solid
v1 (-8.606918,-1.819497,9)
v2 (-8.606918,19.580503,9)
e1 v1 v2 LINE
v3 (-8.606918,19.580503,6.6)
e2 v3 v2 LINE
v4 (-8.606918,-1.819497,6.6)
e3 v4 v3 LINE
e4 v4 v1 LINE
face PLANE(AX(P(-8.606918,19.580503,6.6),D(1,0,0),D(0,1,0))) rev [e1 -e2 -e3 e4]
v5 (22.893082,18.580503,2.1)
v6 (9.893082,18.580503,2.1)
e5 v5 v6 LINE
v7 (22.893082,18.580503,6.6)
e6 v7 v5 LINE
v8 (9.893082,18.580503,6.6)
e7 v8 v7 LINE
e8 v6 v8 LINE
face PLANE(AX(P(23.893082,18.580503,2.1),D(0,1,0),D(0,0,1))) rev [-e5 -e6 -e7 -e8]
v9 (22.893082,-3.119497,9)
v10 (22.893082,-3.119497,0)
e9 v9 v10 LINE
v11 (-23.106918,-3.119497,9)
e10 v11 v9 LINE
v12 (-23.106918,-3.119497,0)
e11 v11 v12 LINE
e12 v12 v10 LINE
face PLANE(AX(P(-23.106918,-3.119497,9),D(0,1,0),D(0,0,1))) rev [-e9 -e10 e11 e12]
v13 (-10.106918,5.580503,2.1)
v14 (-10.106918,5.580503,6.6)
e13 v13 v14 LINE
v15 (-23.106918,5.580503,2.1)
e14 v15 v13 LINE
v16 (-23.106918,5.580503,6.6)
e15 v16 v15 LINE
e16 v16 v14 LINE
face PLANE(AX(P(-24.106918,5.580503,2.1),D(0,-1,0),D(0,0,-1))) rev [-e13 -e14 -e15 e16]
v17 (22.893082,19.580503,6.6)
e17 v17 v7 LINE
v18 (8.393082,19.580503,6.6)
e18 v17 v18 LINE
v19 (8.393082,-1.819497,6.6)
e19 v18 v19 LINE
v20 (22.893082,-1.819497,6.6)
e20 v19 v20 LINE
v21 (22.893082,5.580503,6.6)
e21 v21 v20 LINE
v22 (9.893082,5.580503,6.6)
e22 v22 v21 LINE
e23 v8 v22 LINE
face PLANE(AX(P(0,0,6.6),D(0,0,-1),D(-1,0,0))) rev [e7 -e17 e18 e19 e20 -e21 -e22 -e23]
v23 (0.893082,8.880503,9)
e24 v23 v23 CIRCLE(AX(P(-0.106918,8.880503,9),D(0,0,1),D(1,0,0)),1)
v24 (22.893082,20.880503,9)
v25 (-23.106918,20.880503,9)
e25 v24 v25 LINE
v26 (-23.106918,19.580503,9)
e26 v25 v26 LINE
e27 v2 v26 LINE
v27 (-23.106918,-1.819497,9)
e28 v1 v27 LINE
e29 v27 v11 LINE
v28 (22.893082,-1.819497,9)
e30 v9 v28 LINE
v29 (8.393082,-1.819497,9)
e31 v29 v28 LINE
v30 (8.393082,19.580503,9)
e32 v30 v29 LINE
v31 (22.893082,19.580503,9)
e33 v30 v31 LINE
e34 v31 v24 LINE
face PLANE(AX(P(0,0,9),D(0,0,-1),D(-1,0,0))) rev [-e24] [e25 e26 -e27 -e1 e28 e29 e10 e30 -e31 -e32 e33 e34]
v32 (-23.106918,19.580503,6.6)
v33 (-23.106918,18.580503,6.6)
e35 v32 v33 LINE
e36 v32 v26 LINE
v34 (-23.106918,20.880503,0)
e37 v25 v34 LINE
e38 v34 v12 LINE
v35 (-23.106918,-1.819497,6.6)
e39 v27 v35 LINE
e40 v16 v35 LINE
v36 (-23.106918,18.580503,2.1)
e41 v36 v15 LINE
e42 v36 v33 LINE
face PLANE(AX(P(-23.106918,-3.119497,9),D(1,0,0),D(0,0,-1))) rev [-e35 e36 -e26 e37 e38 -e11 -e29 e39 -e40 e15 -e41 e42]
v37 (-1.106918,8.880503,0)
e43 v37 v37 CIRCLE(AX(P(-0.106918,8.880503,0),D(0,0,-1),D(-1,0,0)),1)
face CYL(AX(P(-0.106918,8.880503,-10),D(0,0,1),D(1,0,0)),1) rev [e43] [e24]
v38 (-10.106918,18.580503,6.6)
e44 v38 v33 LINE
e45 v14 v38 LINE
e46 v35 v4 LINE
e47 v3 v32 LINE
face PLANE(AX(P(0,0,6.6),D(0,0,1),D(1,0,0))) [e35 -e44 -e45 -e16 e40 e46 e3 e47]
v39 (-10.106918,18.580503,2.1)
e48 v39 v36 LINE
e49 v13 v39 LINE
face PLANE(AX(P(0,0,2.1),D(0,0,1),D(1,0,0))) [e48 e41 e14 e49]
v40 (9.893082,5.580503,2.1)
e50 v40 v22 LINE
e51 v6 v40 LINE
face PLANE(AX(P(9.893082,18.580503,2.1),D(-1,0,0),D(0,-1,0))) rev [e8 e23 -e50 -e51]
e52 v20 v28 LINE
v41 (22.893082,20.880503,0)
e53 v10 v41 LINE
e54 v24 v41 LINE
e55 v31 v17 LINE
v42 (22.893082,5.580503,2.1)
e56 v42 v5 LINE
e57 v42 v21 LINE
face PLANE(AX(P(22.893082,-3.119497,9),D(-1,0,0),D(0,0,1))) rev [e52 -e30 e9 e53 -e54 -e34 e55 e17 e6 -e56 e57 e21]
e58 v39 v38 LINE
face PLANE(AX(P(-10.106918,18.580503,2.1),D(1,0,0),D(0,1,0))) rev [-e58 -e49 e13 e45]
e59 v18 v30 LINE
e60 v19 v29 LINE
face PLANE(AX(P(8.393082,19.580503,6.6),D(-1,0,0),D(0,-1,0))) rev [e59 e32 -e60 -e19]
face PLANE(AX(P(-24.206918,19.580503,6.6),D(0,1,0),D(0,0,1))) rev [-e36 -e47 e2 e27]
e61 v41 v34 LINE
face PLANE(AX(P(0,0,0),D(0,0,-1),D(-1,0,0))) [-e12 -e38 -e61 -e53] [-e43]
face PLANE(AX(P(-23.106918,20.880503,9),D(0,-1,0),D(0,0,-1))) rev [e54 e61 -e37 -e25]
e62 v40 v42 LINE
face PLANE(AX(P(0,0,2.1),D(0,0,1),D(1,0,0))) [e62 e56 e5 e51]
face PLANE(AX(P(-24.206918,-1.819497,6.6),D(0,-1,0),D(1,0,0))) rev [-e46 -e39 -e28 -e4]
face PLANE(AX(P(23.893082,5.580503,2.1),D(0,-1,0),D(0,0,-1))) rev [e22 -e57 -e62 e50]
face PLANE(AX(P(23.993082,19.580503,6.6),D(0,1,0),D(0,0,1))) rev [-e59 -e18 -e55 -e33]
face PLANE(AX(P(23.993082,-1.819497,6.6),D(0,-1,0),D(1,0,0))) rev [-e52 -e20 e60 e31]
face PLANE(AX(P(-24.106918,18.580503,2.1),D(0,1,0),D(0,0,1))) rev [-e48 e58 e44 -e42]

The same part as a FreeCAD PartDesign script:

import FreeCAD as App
import Part
import Sketcher

V = App.Vector


def add_polygon(sketch, points):
    """Adds a closed chain of lines whose ends are joined by coincident constraints."""
    first, n = sketch.GeometryCount, len(points)
    for a, b in zip(points, points[1:] + points[:1]):
        sketch.addGeometry(Part.LineSegment(App.Vector(*a, 0), App.Vector(*b, 0)), False)
    for i in range(n):
        sketch.addConstraint(Sketcher.Constraint("Coincident", first + i, 2, first + (i + 1) % n, 1))

doc = App.newDocument("Part")
body = doc.addObject("PartDesign::Body", "Body")

# Sketch on XY plane
sketch1 = body.newObject("Sketcher::SketchObject", "Sketch")
sketch1.AttachmentSupport = (doc.getObject("XY_Plane"), [""])
sketch1.MapMode = "FlatFace"
add_polygon(sketch1, [(-23, 21), (-23, -3), (23, -3), (23, 21)])  # lines 0-3
sketch1.addConstraint(Sketcher.Constraint("Vertical", 0))
sketch1.addConstraint(Sketcher.Constraint("Horizontal", 1))
sketch1.addConstraint(Sketcher.Constraint("Vertical", 2))
sketch1.addConstraint(Sketcher.Constraint("Horizontal", 3))
sketch1.addConstraint(Sketcher.Constraint("DistanceX", 1, 1, 1, 2, 46.0))
sketch1.addConstraint(Sketcher.Constraint("DistanceY", 0, 2, 0, 1, 24.0))
sketch1.addConstraint(Sketcher.Constraint("DistanceX", 0, 2, -1, 1, 23.106918))
sketch1.addConstraint(Sketcher.Constraint("DistanceY", 0, 2, -1, 1, 3.119497))
pad1 = body.newObject("PartDesign::Pad", "Pad")
pad1.Profile = sketch1
pad1.Length = 9

# Sketch on XY plane
sketch2 = body.newObject("Sketcher::SketchObject", "Sketch001")
sketch2.AttachmentSupport = (doc.getObject("XY_Plane"), [""])
sketch2.MapMode = "FlatFace"
sketch2.AttachmentOffset = App.Placement(V(0, 0, 9), App.Rotation())
sketch2.addGeometry(Part.Circle(V(-0.1, 8.9, 0), V(0, 0, 1), 1), False)
sketch2.addConstraint(Sketcher.Constraint("Diameter", 0, 2.0))
sketch2.addConstraint(Sketcher.Constraint("DistanceX", 0, 3, -1, 1, 0.106918))
sketch2.addConstraint(Sketcher.Constraint("DistanceY", -1, 1, 0, 3, 8.880503))
pocket1 = body.newObject("PartDesign::Pocket", "Pocket")
pocket1.Profile = sketch2
pocket1.Length = 19

# Sketch on XY plane
sketch3 = body.newObject("Sketcher::SketchObject", "Sketch002")
sketch3.AttachmentSupport = (doc.getObject("XY_Plane"), [""])
sketch3.MapMode = "FlatFace"
sketch3.AttachmentOffset = App.Placement(V(0, 0, 9), App.Rotation())
add_polygon(sketch3, [(-24, 20), (-24, -2), (-9, -2), (-9, 20)])  # lines 0-3
add_polygon(sketch3, [(8, 20), (8, -2), (24, -2), (24, 20)])  # lines 4-7
sketch3.addConstraint(Sketcher.Constraint("Vertical", 0))
sketch3.addConstraint(Sketcher.Constraint("Horizontal", 1))
sketch3.addConstraint(Sketcher.Constraint("Vertical", 2))
sketch3.addConstraint(Sketcher.Constraint("Horizontal", 3))
sketch3.addConstraint(Sketcher.Constraint("Vertical", 4))
sketch3.addConstraint(Sketcher.Constraint("Horizontal", 5))
sketch3.addConstraint(Sketcher.Constraint("Vertical", 6))
sketch3.addConstraint(Sketcher.Constraint("Horizontal", 7))
sketch3.addConstraint(Sketcher.Constraint("Horizontal", 1, 2, 4, 2))
sketch3.addConstraint(Sketcher.Constraint("Horizontal", 3, 2, 6, 2))
sketch3.addConstraint(Sketcher.Constraint("Equal", 3, 5))
sketch3.addConstraint(Sketcher.Constraint("DistanceX", 1, 1, 1, 2, 15.6))
sketch3.addConstraint(Sketcher.Constraint("DistanceY", 0, 2, 0, 1, 21.4))
sketch3.addConstraint(Sketcher.Constraint("DistanceX", 1, 2, 4, 2, 17.0))
sketch3.addConstraint(Sketcher.Constraint("DistanceX", 0, 2, -1, 1, 24.206918))
sketch3.addConstraint(Sketcher.Constraint("DistanceY", 0, 2, -1, 1, 1.819497))
pocket2 = body.newObject("PartDesign::Pocket", "Pocket001")
pocket2.Profile = sketch3
pocket2.Length = 2.4

# Sketch on XY plane
sketch4 = body.newObject("Sketcher::SketchObject", "Sketch003")
sketch4.AttachmentSupport = (doc.getObject("XY_Plane"), [""])
sketch4.MapMode = "FlatFace"
sketch4.AttachmentOffset = App.Placement(V(0, 0, 6.6), App.Rotation())
add_polygon(sketch4, [(-24, 19), (-24, 6), (-10, 6), (-10, 19)])  # lines 0-3
add_polygon(sketch4, [(10, 19), (10, 6), (24, 6), (24, 19)])  # lines 4-7
sketch4.addConstraint(Sketcher.Constraint("Vertical", 0))
sketch4.addConstraint(Sketcher.Constraint("Horizontal", 1))
sketch4.addConstraint(Sketcher.Constraint("Vertical", 2))
sketch4.addConstraint(Sketcher.Constraint("Horizontal", 3))
sketch4.addConstraint(Sketcher.Constraint("Vertical", 4))
sketch4.addConstraint(Sketcher.Constraint("Horizontal", 5))
sketch4.addConstraint(Sketcher.Constraint("Vertical", 6))
sketch4.addConstraint(Sketcher.Constraint("Horizontal", 7))
sketch4.addConstraint(Sketcher.Constraint("Horizontal", 1, 2, 4, 2))
sketch4.addConstraint(Sketcher.Constraint("Horizontal", 3, 2, 6, 2))
sketch4.addConstraint(Sketcher.Constraint("Equal", 3, 5))
sketch4.addConstraint(Sketcher.Constraint("DistanceX", 1, 1, 1, 2, 14.0))
sketch4.addConstraint(Sketcher.Constraint("DistanceY", 0, 2, 0, 1, 13.0))
sketch4.addConstraint(Sketcher.Constraint("DistanceX", 1, 2, 4, 2, 20.0))
sketch4.addConstraint(Sketcher.Constraint("DistanceX", 0, 2, -1, 1, 24.106918))
sketch4.addConstraint(Sketcher.Constraint("DistanceY", -1, 1, 0, 2, 5.580503))
pocket3 = body.newObject("PartDesign::Pocket", "Pocket002")
pocket3.Profile = sketch4
pocket3.Length = 4.5

doc.recompute()
